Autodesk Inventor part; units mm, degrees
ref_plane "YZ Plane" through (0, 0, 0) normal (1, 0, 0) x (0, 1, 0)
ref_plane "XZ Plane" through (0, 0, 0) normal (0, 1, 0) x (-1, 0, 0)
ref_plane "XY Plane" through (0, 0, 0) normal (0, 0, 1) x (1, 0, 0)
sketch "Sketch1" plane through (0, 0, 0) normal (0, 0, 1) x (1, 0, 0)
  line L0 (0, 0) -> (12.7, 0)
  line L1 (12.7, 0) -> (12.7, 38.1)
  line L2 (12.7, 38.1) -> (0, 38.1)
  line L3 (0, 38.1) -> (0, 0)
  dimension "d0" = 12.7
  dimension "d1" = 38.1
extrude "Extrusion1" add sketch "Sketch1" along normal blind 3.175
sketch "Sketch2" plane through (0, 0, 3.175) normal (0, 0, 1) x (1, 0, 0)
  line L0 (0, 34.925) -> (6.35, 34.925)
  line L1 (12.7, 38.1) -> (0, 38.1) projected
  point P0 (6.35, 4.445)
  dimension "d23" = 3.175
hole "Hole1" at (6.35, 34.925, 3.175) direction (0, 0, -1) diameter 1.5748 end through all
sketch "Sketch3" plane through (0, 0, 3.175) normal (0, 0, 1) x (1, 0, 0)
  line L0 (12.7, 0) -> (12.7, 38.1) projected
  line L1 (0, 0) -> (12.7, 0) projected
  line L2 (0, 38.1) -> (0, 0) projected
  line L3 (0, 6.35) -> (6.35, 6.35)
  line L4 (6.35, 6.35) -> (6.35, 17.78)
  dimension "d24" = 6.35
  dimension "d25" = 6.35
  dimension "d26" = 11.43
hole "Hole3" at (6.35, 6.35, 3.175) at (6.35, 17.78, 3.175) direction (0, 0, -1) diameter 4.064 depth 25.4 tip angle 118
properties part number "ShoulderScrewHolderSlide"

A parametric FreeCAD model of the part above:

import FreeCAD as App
import Part
import Sketcher
from FreeCAD import Vector
Q = App.Units.Quantity

doc = App.newDocument("Part")
body = doc.addObject("PartDesign::Body", "Body")

# Sketch on XY plane
sketch1 = doc.addObject("Sketcher::SketchObject", "Sketch")
body.addObject(sketch1)
sketch1.AttachmentSupport = (doc.XY_Plane, [""])
sketch1.MapMode = "FlatFace"
sketch1.addGeometry(Part.LineSegment(Vector(0, 38.1, 0), Vector(0, 0, 0)), False)
sketch1.addGeometry(Part.LineSegment(Vector(0, 0, 0), Vector(12.7, 0, 0)), False)
sketch1.addGeometry(Part.LineSegment(Vector(12.7, 0, 0), Vector(12.7, 38.1, 0)), False)
sketch1.addGeometry(Part.LineSegment(Vector(12.7, 38.1, 0), Vector(0, 38.1, 0)), False)
sketch1.addConstraint(Sketcher.Constraint("Coincident", 0, 2, 1, 1))
sketch1.addConstraint(Sketcher.Constraint("Coincident", 1, 2, 2, 1))
sketch1.addConstraint(Sketcher.Constraint("Coincident", 2, 2, 3, 1))
sketch1.addConstraint(Sketcher.Constraint("Coincident", 3, 2, 0, 1))
sketch1.addConstraint(Sketcher.Constraint("Vertical", 0))
sketch1.addConstraint(Sketcher.Constraint("Horizontal", 1))
sketch1.addConstraint(Sketcher.Constraint("Vertical", 2))
sketch1.addConstraint(Sketcher.Constraint("Horizontal", 3))
sketch1.addConstraint(Sketcher.Constraint("Coincident", 0, 2, -1, 1))
sketch1.addConstraint(Sketcher.Constraint("DistanceX", 1, 1, 1, 2, Q("0.5 in")))
sketch1.addConstraint(Sketcher.Constraint("DistanceY", 0, 2, 0, 1, Q("1.5 in")))
pad1 = doc.addObject("PartDesign::Pad", "Pad")
body.addObject(pad1)
pad1.Profile = sketch1
pad1.Length = Q("0.125 in")

# Sketch on XY plane
sketch2 = doc.addObject("Sketcher::SketchObject", "Sketch001")
body.addObject(sketch2)
sketch2.AttachmentSupport = (doc.XY_Plane, [""])
sketch2.MapMode = "FlatFace"
sketch2.AttachmentOffset = App.Placement(Vector(0, 0, 0.125 * 25.4), App.Rotation())
sketch2.addGeometry(Part.Circle(Vector(6.35, 34.925, 0), Vector(0, 0, 1), 0.7874), False)
sketch2.addConstraint(Sketcher.Constraint("Diameter", 0, Q("0.062 in")))
sketch2.addConstraint(Sketcher.Constraint("DistanceX", -1, 1, 0, 3, Q("0.25 in")))
sketch2.addConstraint(Sketcher.Constraint("DistanceY", -1, 1, 0, 3, Q("1.375 in")))
doc.recompute()
hole = doc.addObject("PartDesign::Hole", "Hole")
body.addObject(hole)
hole.Profile = sketch2
hole.ThreadType = "None"
hole.Diameter = Q("0.062 in")
hole.DepthType = "ThroughAll"

# Sketch on XY plane
sketch3 = doc.addObject("Sketcher::SketchObject", "Sketch002")
body.addObject(sketch3)
sketch3.AttachmentSupport = (doc.XY_Plane, [""])
sketch3.MapMode = "FlatFace"
sketch3.AttachmentOffset = App.Placement(Vector(0, 0, 0.125 * 25.4), App.Rotation())
sketch3.addGeometry(Part.Circle(Vector(6.35, 6.35, 0), Vector(0, 0, 1), 2.032), False)
sketch3.addGeometry(Part.Circle(Vector(6.35, 17.78, 0), Vector(0, 0, 1), 2.032), False)
sketch3.addConstraint(Sketcher.Constraint("Equal", 0, 1))
sketch3.addConstraint(Sketcher.Constraint("Vertical", 0, 3, 1, 3))
sketch3.addConstraint(Sketcher.Constraint("Diameter", 0, Q("0.16 in")))
sketch3.addConstraint(Sketcher.Constraint("DistanceY", -1, 1, 1, 3, Q("0.7 in")))
sketch3.addConstraint(Sketcher.Constraint("DistanceX", -1, 1, 0, 3, Q("0.25 in")))
sketch3.addConstraint(Sketcher.Constraint("DistanceY", -1, 1, 0, 3, Q("0.25 in")))
doc.recompute()
hole2 = doc.addObject("PartDesign::Hole", "Hole001")
body.addObject(hole2)
hole2.Profile = sketch3
hole2.ThreadType = "None"
hole2.Diameter = Q("0.16 in")
hole2.DepthType = "Dimension"
hole2.Depth = Q("1 in")
hole2.DrillPoint = "Angled"
hole2.DrillPointAngle = 118

doc.recompute()
